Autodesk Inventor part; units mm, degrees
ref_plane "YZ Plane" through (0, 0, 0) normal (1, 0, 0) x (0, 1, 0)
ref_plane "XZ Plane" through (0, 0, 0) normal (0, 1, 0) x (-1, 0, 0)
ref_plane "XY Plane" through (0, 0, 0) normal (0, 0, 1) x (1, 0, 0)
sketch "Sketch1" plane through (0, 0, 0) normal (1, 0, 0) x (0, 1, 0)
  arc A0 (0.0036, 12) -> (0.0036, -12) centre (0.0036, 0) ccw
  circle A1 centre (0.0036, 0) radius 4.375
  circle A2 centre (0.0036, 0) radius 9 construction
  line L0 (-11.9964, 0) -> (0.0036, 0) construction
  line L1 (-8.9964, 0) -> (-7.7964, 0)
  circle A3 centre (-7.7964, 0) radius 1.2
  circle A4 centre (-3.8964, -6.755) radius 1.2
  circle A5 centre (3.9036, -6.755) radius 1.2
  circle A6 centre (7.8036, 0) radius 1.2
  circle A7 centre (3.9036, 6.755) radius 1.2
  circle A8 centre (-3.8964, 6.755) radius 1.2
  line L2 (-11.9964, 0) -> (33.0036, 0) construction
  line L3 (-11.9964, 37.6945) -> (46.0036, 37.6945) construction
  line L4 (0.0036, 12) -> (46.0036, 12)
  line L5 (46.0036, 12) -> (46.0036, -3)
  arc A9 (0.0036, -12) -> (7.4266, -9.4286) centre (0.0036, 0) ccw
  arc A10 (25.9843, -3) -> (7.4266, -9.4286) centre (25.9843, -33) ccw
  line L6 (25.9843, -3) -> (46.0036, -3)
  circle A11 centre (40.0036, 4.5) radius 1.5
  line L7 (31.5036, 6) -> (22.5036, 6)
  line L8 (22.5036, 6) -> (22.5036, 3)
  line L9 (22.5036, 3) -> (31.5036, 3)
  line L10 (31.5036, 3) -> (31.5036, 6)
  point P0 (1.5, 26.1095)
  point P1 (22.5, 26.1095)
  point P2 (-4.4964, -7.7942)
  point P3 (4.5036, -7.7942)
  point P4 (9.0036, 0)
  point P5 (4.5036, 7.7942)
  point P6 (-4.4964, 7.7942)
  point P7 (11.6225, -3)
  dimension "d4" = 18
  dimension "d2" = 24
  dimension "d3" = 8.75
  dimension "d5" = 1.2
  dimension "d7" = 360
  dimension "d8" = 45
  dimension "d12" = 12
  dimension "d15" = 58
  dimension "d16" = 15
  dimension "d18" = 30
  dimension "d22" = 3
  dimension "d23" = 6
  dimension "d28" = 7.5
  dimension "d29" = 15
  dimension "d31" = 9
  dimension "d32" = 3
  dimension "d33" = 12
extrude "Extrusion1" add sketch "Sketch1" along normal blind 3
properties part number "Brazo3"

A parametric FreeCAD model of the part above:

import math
import FreeCAD as App
import Part
import Sketcher

V = App.Vector
Q = App.Units.Quantity


def add_polygon(sketch, points):
    """Adds a closed chain of lines whose ends are joined by coincident constraints."""
    first, n = sketch.GeometryCount, len(points)
    for a, b in zip(points, points[1:] + points[:1]):
        sketch.addGeometry(Part.LineSegment(App.Vector(*a, 0), App.Vector(*b, 0)), False)
    for i in range(n):
        sketch.addConstraint(Sketcher.Constraint("Coincident", first + i, 2, first + (i + 1) % n, 1))

doc = App.newDocument("Part")
body = doc.addObject("PartDesign::Body", "Body")

# Sketch on YZ plane
sketch1 = doc.addObject("Sketcher::SketchObject", "Sketch")
body.addObject(sketch1)
sketch1.AttachmentSupport = (doc.YZ_Plane, [""])
sketch1.MapMode = "FlatFace"
sketch1.addGeometry(Part.LineSegment(V(46, 12, 0), V(0, 12, 0)), False)  # 0
sketch1.addGeometry(Part.ArcOfCircle(Part.Circle(V(0, 0, 0), V(0, 0, 1), 12), math.radians(90), math.radians(270)), False)  # 1
sketch1.addGeometry(Part.ArcOfCircle(Part.Circle(V(0, 0, 0), V(0, 0, 1), 12), math.radians(-90), math.radians(-52)), False)  # 2
sketch1.addGeometry(Part.ArcOfCircle(Part.Circle(V(26, -33, 0), V(0, 0, 1), 30), math.radians(90), math.radians(128)), False)  # 3
sketch1.addGeometry(Part.LineSegment(V(26, -3, 0), V(46, -3, 0)), False)  # 4
sketch1.addGeometry(Part.LineSegment(V(46, -3, 0), V(46, 12, 0)), False)  # 5
sketch1.addGeometry(Part.Circle(V(-3.9, -6.8, 0), V(0, 0, 1), 1.2), False)  # 6
sketch1.addGeometry(Part.Circle(V(3.9, -6.8, 0), V(0, 0, 1), 1.2), False)  # 7
sketch1.addGeometry(Part.Circle(V(-7.8, 0, 0), V(0, 0, 1), 1.2), False)  # 8
sketch1.addGeometry(Part.Circle(V(0, 0, 0), V(0, 0, 1), 4.4), False)  # 9
sketch1.addGeometry(Part.Circle(V(7.8, 0, 0), V(0, 0, 1), 1.2), False)  # 10
sketch1.addGeometry(Part.Circle(V(-3.9, 6.8, 0), V(0, 0, 1), 1.2), False)  # 11
sketch1.addGeometry(Part.Circle(V(3.9, 6.8, 0), V(0, 0, 1), 1.2), False)  # 12
add_polygon(sketch1, [(22.5, 6), (31.5, 6), (31.5, 3), (22.5, 3)])  # lines 13-16
sketch1.addGeometry(Part.Circle(V(40, 4.5, 0), V(0, 0, 1), 1.5), False)  # 17
sketch1.addConstraint([
    Sketcher.Constraint("Tangent", 0, 2, 1, 1),
    Sketcher.Constraint("Tangent", 1, 2, 2, 1),
    Sketcher.Constraint("Tangent", 2, 2, 3, 2),
    Sketcher.Constraint("Tangent", 3, 1, 4, 1),
    Sketcher.Constraint("Coincident", 4, 2, 5, 1),
    Sketcher.Constraint("Coincident", 5, 2, 0, 1),
    Sketcher.Constraint("Horizontal", 0),
    Sketcher.Constraint("Horizontal", 4),
    Sketcher.Constraint("Vertical", 5),
    Sketcher.Constraint("Horizontal", 13),
    Sketcher.Constraint("Vertical", 14),
    Sketcher.Constraint("Horizontal", 15),
    Sketcher.Constraint("Vertical", 16),
    Sketcher.Constraint("Coincident", 9, 3, 1, 3),
    Sketcher.Constraint("Equal", 1, 2),
    Sketcher.Constraint("Equal", 6, 7),
    Sketcher.Constraint("Equal", 7, 8),
    Sketcher.Constraint("Equal", 8, 10),
    Sketcher.Constraint("Equal", 10, 11),
    Sketcher.Constraint("Equal", 11, 12),
    Sketcher.Constraint("Symmetric", 6, 3, 11, 3, -1),
    Sketcher.Constraint("Symmetric", 7, 3, 12, 3, -1),
    Sketcher.Constraint("Symmetric", 0, 2, 1, 2, -1),
    Sketcher.Constraint("PointOnObject", 8, 3, -1),
    Sketcher.Constraint("PointOnObject", 10, 3, -1),
    Sketcher.Constraint("Horizontal", 6, 3, 7, 3),
    Sketcher.Constraint("Diameter", 17, Q("3 mm")),
    Sketcher.Constraint("Radius", 1, Q("12 mm")),
    Sketcher.Constraint("Radius", 3, Q("30 mm")),
    Sketcher.Constraint("Diameter", 6, Q("2.4 mm")),
    Sketcher.Constraint("Diameter", 9, Q("8.75 mm")),
    Sketcher.Constraint("DistanceX", 13, 1, 13, 2, Q("9 mm")),
    Sketcher.Constraint("DistanceY", 5, 1, 5, 2, Q("15 mm")),
    Sketcher.Constraint("DistanceY", 14, 2, 14, 1, Q("3 mm")),
    Sketcher.Constraint("DistanceY", -1, 1, 13, 2, Q("6 mm")),
    Sketcher.Constraint("DistanceX", 17, 3, 4, 2, Q("6 mm")),
    Sketcher.Constraint("DistanceY", 3, 1, 17, 3, Q("7.5 mm")),
    Sketcher.Constraint("DistanceX", 0, 2, 0, 1, Q("46 mm")),
    Sketcher.Constraint("DistanceX", 6, 3, 1, 3, Q("3.9 mm")),
    Sketcher.Constraint("DistanceX", 6, 3, 7, 3, Q("7.8 mm")),
    Sketcher.Constraint("DistanceX", 8, 3, 1, 3, Q("7.8 mm")),
    Sketcher.Constraint("DistanceX", 1, 3, 10, 3, Q("7.8 mm")),
    Sketcher.Constraint("DistanceX", 13, 2, 17, 3, Q("8.5 mm")),
    Sketcher.Constraint("DistanceY", 6, 3, -1, 1, Q("6.755 mm")),
    Sketcher.Constraint("DistanceX", -1, 1, 1, 3, Q("0.0036 mm")),
])
pad1 = doc.addObject("PartDesign::Pad", "Pad")
body.addObject(pad1)
pad1.Profile = sketch1
pad1.Length = 3

doc.recompute()
